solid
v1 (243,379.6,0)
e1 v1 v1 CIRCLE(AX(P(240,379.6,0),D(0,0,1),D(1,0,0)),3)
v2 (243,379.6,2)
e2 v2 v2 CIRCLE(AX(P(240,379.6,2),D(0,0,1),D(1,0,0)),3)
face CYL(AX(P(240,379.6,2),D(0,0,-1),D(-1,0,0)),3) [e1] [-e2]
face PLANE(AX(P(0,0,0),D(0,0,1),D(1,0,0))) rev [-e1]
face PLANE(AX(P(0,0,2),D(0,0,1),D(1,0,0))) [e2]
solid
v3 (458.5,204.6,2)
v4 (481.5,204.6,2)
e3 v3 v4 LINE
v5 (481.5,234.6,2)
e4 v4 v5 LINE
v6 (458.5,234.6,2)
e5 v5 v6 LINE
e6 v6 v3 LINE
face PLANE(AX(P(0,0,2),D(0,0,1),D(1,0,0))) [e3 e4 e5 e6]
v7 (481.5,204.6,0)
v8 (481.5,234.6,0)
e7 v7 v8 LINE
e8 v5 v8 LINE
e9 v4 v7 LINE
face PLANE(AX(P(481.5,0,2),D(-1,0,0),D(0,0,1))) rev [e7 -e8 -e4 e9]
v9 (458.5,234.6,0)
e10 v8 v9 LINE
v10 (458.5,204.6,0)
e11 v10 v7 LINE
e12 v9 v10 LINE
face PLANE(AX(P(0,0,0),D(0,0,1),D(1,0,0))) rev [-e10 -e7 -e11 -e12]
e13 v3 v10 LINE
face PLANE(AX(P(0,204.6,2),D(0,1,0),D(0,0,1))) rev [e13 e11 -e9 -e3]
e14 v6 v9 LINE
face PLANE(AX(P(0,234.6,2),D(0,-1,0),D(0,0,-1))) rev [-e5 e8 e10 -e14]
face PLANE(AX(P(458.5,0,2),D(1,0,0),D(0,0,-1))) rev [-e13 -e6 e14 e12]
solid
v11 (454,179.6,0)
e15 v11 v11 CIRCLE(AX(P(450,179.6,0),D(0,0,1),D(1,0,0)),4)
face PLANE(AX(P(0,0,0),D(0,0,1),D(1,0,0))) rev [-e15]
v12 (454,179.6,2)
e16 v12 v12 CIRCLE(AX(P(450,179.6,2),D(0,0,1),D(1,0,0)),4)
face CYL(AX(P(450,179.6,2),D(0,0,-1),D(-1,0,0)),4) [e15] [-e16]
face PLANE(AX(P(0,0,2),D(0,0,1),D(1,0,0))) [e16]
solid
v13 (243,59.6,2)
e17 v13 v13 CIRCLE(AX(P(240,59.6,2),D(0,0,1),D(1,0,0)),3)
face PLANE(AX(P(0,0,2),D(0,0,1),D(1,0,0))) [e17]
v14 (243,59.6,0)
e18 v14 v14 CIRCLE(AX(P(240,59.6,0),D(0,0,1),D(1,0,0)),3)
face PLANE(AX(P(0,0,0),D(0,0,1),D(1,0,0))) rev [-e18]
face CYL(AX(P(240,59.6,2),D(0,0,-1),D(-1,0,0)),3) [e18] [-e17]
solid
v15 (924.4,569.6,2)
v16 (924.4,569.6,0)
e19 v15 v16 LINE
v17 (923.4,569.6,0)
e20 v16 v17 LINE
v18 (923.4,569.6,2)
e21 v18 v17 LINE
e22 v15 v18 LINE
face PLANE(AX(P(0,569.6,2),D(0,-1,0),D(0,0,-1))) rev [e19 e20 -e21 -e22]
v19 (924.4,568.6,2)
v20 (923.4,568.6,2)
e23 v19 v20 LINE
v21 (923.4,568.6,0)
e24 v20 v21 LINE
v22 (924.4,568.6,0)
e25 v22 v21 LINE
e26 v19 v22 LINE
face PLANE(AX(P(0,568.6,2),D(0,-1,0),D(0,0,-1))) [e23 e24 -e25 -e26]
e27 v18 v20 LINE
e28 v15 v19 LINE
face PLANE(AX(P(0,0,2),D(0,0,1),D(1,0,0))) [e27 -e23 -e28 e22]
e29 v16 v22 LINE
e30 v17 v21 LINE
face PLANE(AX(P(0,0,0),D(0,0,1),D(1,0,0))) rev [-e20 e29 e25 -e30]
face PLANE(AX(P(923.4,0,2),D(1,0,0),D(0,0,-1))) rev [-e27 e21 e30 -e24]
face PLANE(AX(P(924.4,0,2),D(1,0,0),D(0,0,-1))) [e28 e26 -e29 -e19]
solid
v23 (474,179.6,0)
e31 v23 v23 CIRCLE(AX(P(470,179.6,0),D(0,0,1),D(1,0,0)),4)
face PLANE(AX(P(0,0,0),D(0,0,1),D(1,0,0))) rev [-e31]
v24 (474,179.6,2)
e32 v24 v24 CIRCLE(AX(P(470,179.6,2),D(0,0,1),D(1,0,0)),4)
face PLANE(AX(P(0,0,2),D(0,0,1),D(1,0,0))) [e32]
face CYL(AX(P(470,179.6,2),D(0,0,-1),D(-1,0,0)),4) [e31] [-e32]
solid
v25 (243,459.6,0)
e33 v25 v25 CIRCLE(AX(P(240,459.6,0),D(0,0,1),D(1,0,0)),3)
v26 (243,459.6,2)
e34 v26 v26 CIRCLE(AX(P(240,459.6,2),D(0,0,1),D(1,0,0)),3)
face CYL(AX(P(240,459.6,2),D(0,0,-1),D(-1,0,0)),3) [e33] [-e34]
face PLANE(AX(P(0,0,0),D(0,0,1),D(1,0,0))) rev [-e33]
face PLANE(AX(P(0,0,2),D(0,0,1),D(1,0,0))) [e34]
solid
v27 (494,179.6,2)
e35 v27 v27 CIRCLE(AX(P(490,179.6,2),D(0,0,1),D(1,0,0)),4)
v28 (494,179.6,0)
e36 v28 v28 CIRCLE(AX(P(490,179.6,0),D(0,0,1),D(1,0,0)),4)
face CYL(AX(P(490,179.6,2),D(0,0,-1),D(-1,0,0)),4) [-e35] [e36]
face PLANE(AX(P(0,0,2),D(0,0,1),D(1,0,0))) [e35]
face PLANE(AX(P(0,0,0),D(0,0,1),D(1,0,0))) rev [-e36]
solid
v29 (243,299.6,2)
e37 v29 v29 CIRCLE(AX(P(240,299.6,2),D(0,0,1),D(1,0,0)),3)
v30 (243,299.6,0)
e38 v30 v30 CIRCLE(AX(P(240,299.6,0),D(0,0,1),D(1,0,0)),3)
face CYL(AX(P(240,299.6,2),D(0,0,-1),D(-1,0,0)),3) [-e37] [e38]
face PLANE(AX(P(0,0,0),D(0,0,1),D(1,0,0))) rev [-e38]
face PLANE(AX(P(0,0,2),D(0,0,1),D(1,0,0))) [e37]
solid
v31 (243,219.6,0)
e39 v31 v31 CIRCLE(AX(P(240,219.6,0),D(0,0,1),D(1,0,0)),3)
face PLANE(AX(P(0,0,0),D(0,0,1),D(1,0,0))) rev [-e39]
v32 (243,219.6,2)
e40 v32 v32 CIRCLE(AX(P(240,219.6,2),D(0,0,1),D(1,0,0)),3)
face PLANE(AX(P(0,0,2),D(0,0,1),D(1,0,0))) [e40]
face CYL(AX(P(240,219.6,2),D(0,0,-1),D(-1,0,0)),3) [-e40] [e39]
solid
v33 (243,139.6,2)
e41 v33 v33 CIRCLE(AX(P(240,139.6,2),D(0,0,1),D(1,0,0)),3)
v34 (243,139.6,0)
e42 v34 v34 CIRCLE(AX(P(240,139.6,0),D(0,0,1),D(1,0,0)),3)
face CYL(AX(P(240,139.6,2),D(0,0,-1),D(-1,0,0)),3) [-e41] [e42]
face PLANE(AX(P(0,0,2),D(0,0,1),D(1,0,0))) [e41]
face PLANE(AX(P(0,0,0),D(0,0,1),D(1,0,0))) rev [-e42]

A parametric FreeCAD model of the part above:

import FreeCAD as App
import Part
import Sketcher

doc = App.newDocument("Part")
body = doc.addObject("PartDesign::Body", "Body")

# Sketch on XY plane
sketch1 = body.newObject("Sketcher::SketchObject", "Sketch")
sketch1.AttachmentSupport = (doc.getObject("XY_Plane"), [""])
sketch1.MapMode = "FlatFace"
sketch1.addGeometry(Part.Circle(App.Vector(240, 299.6, 0), App.Vector(0, 0, 1), 3), False)
sketch1.addConstraint([
    Sketcher.Constraint("Diameter", 0, 6.0),
    Sketcher.Constraint("DistanceX", -1, 1, 0, 3, 240.0),
    Sketcher.Constraint("DistanceY", -1, 1, 0, 3, 299.6),
])
pad1 = body.newObject("PartDesign::Pad", "Pad")
pad1.Profile = sketch1
pad1.Length = 2
body2 = doc.addObject("PartDesign::Body", "Body001")

# Sketch on XY plane
sketch2 = body2.newObject("Sketcher::SketchObject", "Sketch001")
sketch2.AttachmentSupport = (doc.getObject("XY_Plane001"), [""])
sketch2.MapMode = "FlatFace"
sketch2.addGeometry(Part.Circle(App.Vector(240, 379.6, 0), App.Vector(0, 0, 1), 3), False)
sketch2.addConstraint([
    Sketcher.Constraint("Diameter", 0, 6.0),
    Sketcher.Constraint("DistanceX", -1, 1, 0, 3, 240.0),
    Sketcher.Constraint("DistanceY", -1, 1, 0, 3, 379.6),
])
pad2 = body2.newObject("PartDesign::Pad", "Pad001")
pad2.Profile = sketch2
pad2.Length = 2
body3 = doc.addObject("PartDesign::Body", "Body002")

# Sketch on XY plane
sketch3 = body3.newObject("Sketcher::SketchObject", "Sketch002")
sketch3.AttachmentSupport = (doc.getObject("XY_Plane002"), [""])
sketch3.MapMode = "FlatFace"
sketch3.addGeometry(Part.Circle(App.Vector(240, 459.6, 0), App.Vector(0, 0, 1), 3), False)
sketch3.addConstraint([
    Sketcher.Constraint("Diameter", 0, 6.0),
    Sketcher.Constraint("DistanceX", -1, 1, 0, 3, 240.0),
    Sketcher.Constraint("DistanceY", -1, 1, 0, 3, 459.6),
])
pad3 = body3.newObject("PartDesign::Pad", "Pad002")
pad3.Profile = sketch3
pad3.Length = 2
body4 = doc.addObject("PartDesign::Body", "Body003")

# Sketch on XY plane
sketch4 = body4.newObject("Sketcher::SketchObject", "Sketch003")
sketch4.AttachmentSupport = (doc.getObject("XY_Plane003"), [""])
sketch4.MapMode = "FlatFace"
sketch4.addGeometry(Part.Circle(App.Vector(240, 219.6, 0), App.Vector(0, 0, 1), 3), False)
sketch4.addConstraint([
    Sketcher.Constraint("Diameter", 0, 6.0),
    Sketcher.Constraint("DistanceX", -1, 1, 0, 3, 240.0),
    Sketcher.Constraint("DistanceY", -1, 1, 0, 3, 219.6),
])
pad4 = body4.newObject("PartDesign::Pad", "Pad003")
pad4.Profile = sketch4
pad4.Length = 2
body5 = doc.addObject("PartDesign::Body", "Body004")

# Sketch on XY plane
sketch5 = body5.newObject("Sketcher::SketchObject", "Sketch004")
sketch5.AttachmentSupport = (doc.getObject("XY_Plane004"), [""])
sketch5.MapMode = "FlatFace"
sketch5.addGeometry(Part.Circle(App.Vector(240, 139.6, 0), App.Vector(0, 0, 1), 3), False)
sketch5.addConstraint([
    Sketcher.Constraint("Diameter", 0, 6.0),
    Sketcher.Constraint("DistanceX", -1, 1, 0, 3, 240.0),
    Sketcher.Constraint("DistanceY", -1, 1, 0, 3, 139.6),
])
pad5 = body5.newObject("PartDesign::Pad", "Pad004")
pad5.Profile = sketch5
pad5.Length = 2
body6 = doc.addObject("PartDesign::Body", "Body005")

# Sketch on XY plane
sketch6 = body6.newObject("Sketcher::SketchObject", "Sketch005")
sketch6.AttachmentSupport = (doc.getObject("XY_Plane005"), [""])
sketch6.MapMode = "FlatFace"
sketch6.addGeometry(Part.Circle(App.Vector(240, 59.6, 0), App.Vector(0, 0, 1), 3), False)
sketch6.addConstraint([
    Sketcher.Constraint("Diameter", 0, 6.0),
    Sketcher.Constraint("DistanceX", -1, 1, 0, 3, 240.0),
    Sketcher.Constraint("DistanceY", -1, 1, 0, 3, 59.6),
])
pad6 = body6.newObject("PartDesign::Pad", "Pad005")
pad6.Profile = sketch6
pad6.Length = 2
body7 = doc.addObject("PartDesign::Body", "Body006")

# Sketch on XY plane
sketch7 = body7.newObject("Sketcher::SketchObject", "Sketch006")
sketch7.AttachmentSupport = (doc.getObject("XY_Plane006"), [""])
sketch7.MapMode = "FlatFace"
sketch7.addGeometry([
    Part.LineSegment(App.Vector(458, 235, 0), App.Vector(458, 205, 0)),
    Part.LineSegment(App.Vector(458, 205, 0), App.Vector(482, 205, 0)),
    Part.LineSegment(App.Vector(482, 205, 0), App.Vector(482, 235, 0)),
    Part.LineSegment(App.Vector(482, 235, 0), App.Vector(458, 235, 0)),
], False)
sketch7.addConstraint([
    Sketcher.Constraint("Coincident", 0, 2, 1, 1),
    Sketcher.Constraint("Coincident", 1, 2, 2, 1),
    Sketcher.Constraint("Coincident", 2, 2, 3, 1),
    Sketcher.Constraint("Coincident", 3, 2, 0, 1),
    Sketcher.Constraint("Vertical", 0),
    Sketcher.Constraint("Horizontal", 1),
    Sketcher.Constraint("Vertical", 2),
    Sketcher.Constraint("Horizontal", 3),
    Sketcher.Constraint("DistanceX", 1, 1, 1, 2, 23.0),
    Sketcher.Constraint("DistanceY", 0, 2, 0, 1, 30.0),
    Sketcher.Constraint("DistanceX", -1, 1, 0, 2, 458.5),
    Sketcher.Constraint("DistanceY", -1, 1, 0, 2, 204.6),
])
pad7 = body7.newObject("PartDesign::Pad", "Pad006")
pad7.Profile = sketch7
pad7.Length = 2
body8 = doc.addObject("PartDesign::Body", "Body007")

# Sketch on XY plane
sketch8 = body8.newObject("Sketcher::SketchObject", "Sketch007")
sketch8.AttachmentSupport = (doc.getObject("XY_Plane007"), [""])
sketch8.MapMode = "FlatFace"
sketch8.addGeometry(Part.Circle(App.Vector(490, 179.6, 0), App.Vector(0, 0, 1), 4), False)
sketch8.addConstraint([
    Sketcher.Constraint("Diameter", 0, 8.0),
    Sketcher.Constraint("DistanceX", -1, 1, 0, 3, 490.0),
    Sketcher.Constraint("DistanceY", -1, 1, 0, 3, 179.6),
])
pad8 = body8.newObject("PartDesign::Pad", "Pad007")
pad8.Profile = sketch8
pad8.Length = 2
body9 = doc.addObject("PartDesign::Body", "Body008")

# Sketch on XY plane
sketch9 = body9.newObject("Sketcher::SketchObject", "Sketch008")
sketch9.AttachmentSupport = (doc.getObject("XY_Plane008"), [""])
sketch9.MapMode = "FlatFace"
sketch9.addGeometry(Part.Circle(App.Vector(470, 179.6, 0), App.Vector(0, 0, 1), 4), False)
sketch9.addConstraint([
    Sketcher.Constraint("Diameter", 0, 8.0),
    Sketcher.Constraint("DistanceX", -1, 1, 0, 3, 470.0),
    Sketcher.Constraint("DistanceY", -1, 1, 0, 3, 179.6),
])
pad9 = body9.newObject("PartDesign::Pad", "Pad008")
pad9.Profile = sketch9
pad9.Length = 2
body10 = doc.addObject("PartDesign::Body", "Body009")

# Sketch on XY plane
sketch10 = body10.newObject("Sketcher::SketchObject", "Sketch009")
sketch10.AttachmentSupport = (doc.getObject("XY_Plane009"), [""])
sketch10.MapMode = "FlatFace"
sketch10.addGeometry(Part.Circle(App.Vector(450, 179.6, 0), App.Vector(0, 0, 1), 4), False)
sketch10.addConstraint([
    Sketcher.Constraint("Diameter", 0, 8.0),
    Sketcher.Constraint("DistanceX", -1, 1, 0, 3, 450.0),
    Sketcher.Constraint("DistanceY", -1, 1, 0, 3, 179.6),
])
pad10 = body10.newObject("PartDesign::Pad", "Pad009")
pad10.Profile = sketch10
pad10.Length = 2
body11 = doc.addObject("PartDesign::Body", "Body010")

# Sketch on XY plane
sketch11 = body11.newObject("Sketcher::SketchObject", "Sketch010")
sketch11.AttachmentSupport = (doc.getObject("XY_Plane010"), [""])
sketch11.MapMode = "FlatFace"
sketch11.addGeometry([
    Part.LineSegment(App.Vector(923.4, 569.6, 0), App.Vector(923.4, 568.6, 0)),
    Part.LineSegment(App.Vector(923.4, 568.6, 0), App.Vector(924.4, 568.6, 0)),
    Part.LineSegment(App.Vector(924.4, 568.6, 0), App.Vector(924.4, 569.6, 0)),
    Part.LineSegment(App.Vector(924.4, 569.6, 0), App.Vector(923.4, 569.6, 0)),
], False)
sketch11.addConstraint([
    Sketcher.Constraint("Coincident", 0, 2, 1, 1),
    Sketcher.Constraint("Coincident", 1, 2, 2, 1),
    Sketcher.Constraint("Coincident", 2, 2, 3, 1),
    Sketcher.Constraint("Coincident", 3, 2, 0, 1),
    Sketcher.Constraint("Vertical", 0),
    Sketcher.Constraint("Horizontal", 1),
    Sketcher.Constraint("Vertical", 2),
    Sketcher.Constraint("Horizontal", 3),
    Sketcher.Constraint("Equal", 3, 0),
    Sketcher.Constraint("DistanceX", 1, 1, 1, 2, 1.0),
    Sketcher.Constraint("DistanceX", -1, 1, 0, 2, 923.4),
    Sketcher.Constraint("DistanceY", -1, 1, 0, 2, 568.6),
])
pad11 = body11.newObject("PartDesign::Pad", "Pad010")
pad11.Profile = sketch11
pad11.Length = 2

doc.recompute()
